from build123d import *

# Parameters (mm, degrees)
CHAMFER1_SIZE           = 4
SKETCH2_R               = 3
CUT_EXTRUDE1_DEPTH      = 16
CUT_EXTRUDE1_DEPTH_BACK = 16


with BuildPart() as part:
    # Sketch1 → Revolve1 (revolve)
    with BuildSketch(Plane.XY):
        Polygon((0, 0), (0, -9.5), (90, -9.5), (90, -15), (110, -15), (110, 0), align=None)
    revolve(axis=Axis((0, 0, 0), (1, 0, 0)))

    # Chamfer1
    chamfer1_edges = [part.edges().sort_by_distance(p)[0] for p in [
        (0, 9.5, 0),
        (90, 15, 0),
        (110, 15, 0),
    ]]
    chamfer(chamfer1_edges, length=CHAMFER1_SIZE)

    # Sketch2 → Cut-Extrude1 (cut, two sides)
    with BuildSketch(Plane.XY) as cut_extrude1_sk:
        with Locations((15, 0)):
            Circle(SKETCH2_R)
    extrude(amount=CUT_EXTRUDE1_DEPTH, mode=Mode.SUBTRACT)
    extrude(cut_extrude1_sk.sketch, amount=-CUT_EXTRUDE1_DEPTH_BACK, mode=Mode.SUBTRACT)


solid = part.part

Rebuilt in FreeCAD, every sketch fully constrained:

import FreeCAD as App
import Part
import Sketcher

V = App.Vector


def edges_at(feature, points):
    """Names of the edges that pass closest to the given points."""
    edges = feature.Shape.Edges
    near = lambda p: min(range(len(edges)), key=lambda i: edges[i].distToShape(Part.Vertex(*p))[0])
    return sorted({f"Edge{near(p) + 1}" for p in points})


def add_polygon(sketch, points):
    """Adds a closed chain of lines whose ends are joined by coincident constraints."""
    first, n = sketch.GeometryCount, len(points)
    for a, b in zip(points, points[1:] + points[:1]):
        sketch.addGeometry(Part.LineSegment(App.Vector(*a, 0), App.Vector(*b, 0)), False)
    for i in range(n):
        sketch.addConstraint(Sketcher.Constraint("Coincident", first + i, 2, first + (i + 1) % n, 1))

doc = App.newDocument("Part")
body = doc.addObject("PartDesign::Body", "Body")

# Sketch on XY plane
sketch1 = doc.addObject("Sketcher::SketchObject", "Sketch")
body.addObject(sketch1)
sketch1.AttachmentSupport = (doc.XY_Plane, [""])
sketch1.MapMode = "FlatFace"
add_polygon(sketch1, [(0, 0), (0, -10), (90, -10), (90, -15), (110, -15), (110, 0)])  # lines 0-5
sketch1.addConstraint(Sketcher.Constraint("Vertical", 0))
sketch1.addConstraint(Sketcher.Constraint("Horizontal", 1))
sketch1.addConstraint(Sketcher.Constraint("Vertical", 2))
sketch1.addConstraint(Sketcher.Constraint("Horizontal", 3))
sketch1.addConstraint(Sketcher.Constraint("Vertical", 4))
sketch1.addConstraint(Sketcher.Constraint("Horizontal", 5))
sketch1.addConstraint(Sketcher.Constraint("Coincident", 5, 2, -1, 1))
sketch1.addConstraint(Sketcher.Constraint("DistanceX", 1, 1, 1, 2, 90.0))
sketch1.addConstraint(Sketcher.Constraint("DistanceX", 3, 1, 3, 2, 20.0))
sketch1.addConstraint(Sketcher.Constraint("DistanceY", 4, 1, 4, 2, 15.0))
sketch1.addConstraint(Sketcher.Constraint("DistanceY", 0, 2, 0, 1, 9.5))
revolution = doc.addObject("PartDesign::Revolution", "Revolution")
body.addObject(revolution)
revolution.Profile = sketch1
revolution.ReferenceAxis = (sketch1, ["H_Axis"])
revolution.Angle = 360
doc.recompute()

chamfer = doc.addObject("PartDesign::Chamfer", "Chamfer")
body.addObject(chamfer)
chamfer.Base = (revolution, edges_at(revolution, [(0, 9.5, 0), (90, 15, 0), (110, 15, 0)]))
chamfer.Size = 4

# Sketch on XY plane
sketch2 = doc.addObject("Sketcher::SketchObject", "Sketch001")
body.addObject(sketch2)
sketch2.AttachmentSupport = (doc.XY_Plane, [""])
sketch2.MapMode = "FlatFace"
sketch2.addGeometry(Part.Circle(V(15, 0, 0), V(0, 0, 1), 3), False)
sketch2.addConstraint(Sketcher.Constraint("PointOnObject", 0, 3, -1))
sketch2.addConstraint(Sketcher.Constraint("Diameter", 0, 6.0))
sketch2.addConstraint(Sketcher.Constraint("DistanceX", -1, 1, 0, 3, 15.0))
pocket1 = doc.addObject("PartDesign::Pocket", "Pocket")
body.addObject(pocket1)
pocket1.Profile = sketch2
pocket1.Type = "ThroughAll"
pocket1.Midplane = True

doc.recompute()
